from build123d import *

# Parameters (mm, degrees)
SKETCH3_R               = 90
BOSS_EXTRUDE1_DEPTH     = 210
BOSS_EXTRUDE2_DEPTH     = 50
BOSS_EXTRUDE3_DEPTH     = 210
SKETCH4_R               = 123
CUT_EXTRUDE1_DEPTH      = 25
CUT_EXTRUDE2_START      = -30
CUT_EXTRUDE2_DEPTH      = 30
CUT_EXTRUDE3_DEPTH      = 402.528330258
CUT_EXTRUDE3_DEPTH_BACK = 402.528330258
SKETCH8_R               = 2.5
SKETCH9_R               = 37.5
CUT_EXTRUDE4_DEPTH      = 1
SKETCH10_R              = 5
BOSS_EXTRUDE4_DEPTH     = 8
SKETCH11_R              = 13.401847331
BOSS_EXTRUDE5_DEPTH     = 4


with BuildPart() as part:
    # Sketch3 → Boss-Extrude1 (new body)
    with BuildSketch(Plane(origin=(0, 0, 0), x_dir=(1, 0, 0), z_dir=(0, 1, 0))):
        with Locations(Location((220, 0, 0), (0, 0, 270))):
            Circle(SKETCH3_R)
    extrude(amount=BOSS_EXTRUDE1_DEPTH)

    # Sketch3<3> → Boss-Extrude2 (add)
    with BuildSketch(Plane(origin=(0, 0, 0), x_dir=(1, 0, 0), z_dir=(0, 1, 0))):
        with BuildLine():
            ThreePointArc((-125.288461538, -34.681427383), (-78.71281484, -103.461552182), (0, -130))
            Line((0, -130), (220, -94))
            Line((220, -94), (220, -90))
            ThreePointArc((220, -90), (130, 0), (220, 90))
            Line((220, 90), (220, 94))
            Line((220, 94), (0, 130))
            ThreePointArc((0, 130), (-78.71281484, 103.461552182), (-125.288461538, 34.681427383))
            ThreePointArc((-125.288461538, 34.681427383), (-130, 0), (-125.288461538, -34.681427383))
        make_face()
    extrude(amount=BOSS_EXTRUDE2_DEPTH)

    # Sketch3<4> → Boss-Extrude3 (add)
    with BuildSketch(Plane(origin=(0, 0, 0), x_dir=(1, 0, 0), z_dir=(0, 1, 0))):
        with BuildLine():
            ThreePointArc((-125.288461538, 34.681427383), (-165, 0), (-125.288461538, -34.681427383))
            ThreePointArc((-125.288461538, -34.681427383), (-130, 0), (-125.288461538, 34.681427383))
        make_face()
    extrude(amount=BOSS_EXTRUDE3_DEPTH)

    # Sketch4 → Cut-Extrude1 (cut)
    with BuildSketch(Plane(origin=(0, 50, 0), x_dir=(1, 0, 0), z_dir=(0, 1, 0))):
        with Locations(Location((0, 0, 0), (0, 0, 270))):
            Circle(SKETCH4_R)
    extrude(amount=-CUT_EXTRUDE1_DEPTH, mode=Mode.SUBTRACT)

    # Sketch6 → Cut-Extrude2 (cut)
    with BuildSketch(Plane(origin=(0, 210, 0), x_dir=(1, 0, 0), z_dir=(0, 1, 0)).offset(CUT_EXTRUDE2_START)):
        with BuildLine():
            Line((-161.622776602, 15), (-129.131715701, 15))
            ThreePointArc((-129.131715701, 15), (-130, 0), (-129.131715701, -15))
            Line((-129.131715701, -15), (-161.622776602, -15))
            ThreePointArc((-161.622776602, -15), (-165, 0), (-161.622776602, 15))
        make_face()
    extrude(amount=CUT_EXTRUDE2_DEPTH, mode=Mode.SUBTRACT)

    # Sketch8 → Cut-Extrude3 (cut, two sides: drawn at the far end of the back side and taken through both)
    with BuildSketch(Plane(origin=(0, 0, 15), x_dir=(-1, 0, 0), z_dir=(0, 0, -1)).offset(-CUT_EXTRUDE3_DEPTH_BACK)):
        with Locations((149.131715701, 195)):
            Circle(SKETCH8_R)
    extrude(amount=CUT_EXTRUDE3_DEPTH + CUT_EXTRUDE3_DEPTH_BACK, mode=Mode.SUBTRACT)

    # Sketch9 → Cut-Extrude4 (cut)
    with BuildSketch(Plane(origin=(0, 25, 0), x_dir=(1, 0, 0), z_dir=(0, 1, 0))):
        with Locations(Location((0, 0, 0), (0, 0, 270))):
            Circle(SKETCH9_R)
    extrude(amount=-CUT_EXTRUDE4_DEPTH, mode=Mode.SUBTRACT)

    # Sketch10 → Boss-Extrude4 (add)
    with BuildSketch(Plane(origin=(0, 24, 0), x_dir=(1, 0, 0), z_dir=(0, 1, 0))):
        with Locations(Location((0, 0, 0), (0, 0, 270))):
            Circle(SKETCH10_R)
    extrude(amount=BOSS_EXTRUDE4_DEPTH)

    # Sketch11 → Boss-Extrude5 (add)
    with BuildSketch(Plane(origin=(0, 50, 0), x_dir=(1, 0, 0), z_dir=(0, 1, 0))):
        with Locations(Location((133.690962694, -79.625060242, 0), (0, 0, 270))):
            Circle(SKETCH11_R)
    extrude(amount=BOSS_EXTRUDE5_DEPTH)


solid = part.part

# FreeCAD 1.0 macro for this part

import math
import FreeCAD as App
import Part
import Sketcher

doc = App.newDocument("Part")
body = doc.addObject("PartDesign::Body", "Body")

sketch1 = body.newObject("Sketcher::SketchObject", "Sketch")
sketch1.AttachmentSupport = (doc.getObject("XZ_Plane"), [""])
sketch1.MapMode = "FlatFace"
sketch1.addGeometry(Part.Circle(App.Vector(220, 0, 0), App.Vector(0, 0, 1), 90), False)
sketch1.addConstraint(Sketcher.Constraint("PointOnObject", 0, 3, -1))
sketch1.addConstraint(Sketcher.Constraint("Diameter", 0, 180.0))
sketch1.addConstraint(Sketcher.Constraint("DistanceX", -1, 1, 0, 3, 220.0))
pad1 = body.newObject("PartDesign::Pad", "Pad")
pad1.Profile = sketch1
pad1.Length = 210
pad1.Reversed = True

sketch2 = body.newObject("Sketcher::SketchObject", "Sketch001")
sketch2.AttachmentSupport = (doc.getObject("XZ_Plane"), [""])
sketch2.MapMode = "FlatFace"
sketch2.addGeometry(Part.ArcOfCircle(Part.Circle(App.Vector(0, 0, 0), App.Vector(0, 0, 1), 130), math.radians(90), math.radians(165)), False)
sketch2.addGeometry(Part.LineSegment(App.Vector(0, 130, 0), App.Vector(220, 94, 0)), False)
sketch2.addGeometry(Part.LineSegment(App.Vector(220, 94, 0), App.Vector(220, 90, 0)), False)
sketch2.addGeometry(Part.ArcOfCircle(Part.Circle(App.Vector(220, 0, 0), App.Vector(0, 0, 1), 90), math.radians(90), math.radians(270)), False)
sketch2.addGeometry(Part.LineSegment(App.Vector(220, -90, 0), App.Vector(220, -94, 0)), False)
sketch2.addGeometry(Part.LineSegment(App.Vector(220, -94, 0), App.Vector(0, -130, 0)), False)
sketch2.addGeometry(Part.ArcOfCircle(Part.Circle(App.Vector(0, 0, 0), App.Vector(0, 0, 1), 130), math.radians(-165), math.radians(-90)), False)
sketch2.addGeometry(Part.ArcOfCircle(Part.Circle(App.Vector(0, 0, 0), App.Vector(0, 0, 1), 130), math.radians(165), math.radians(195)), False)
sketch2.addConstraint(Sketcher.Constraint("Coincident", 0, 1, 1, 1))
sketch2.addConstraint(Sketcher.Constraint("Coincident", 1, 2, 2, 1))
sketch2.addConstraint(Sketcher.Constraint("Coincident", 2, 2, 3, 1))
sketch2.addConstraint(Sketcher.Constraint("Coincident", 3, 2, 4, 1))
sketch2.addConstraint(Sketcher.Constraint("Coincident", 4, 2, 5, 1))
sketch2.addConstraint(Sketcher.Constraint("Coincident", 5, 2, 6, 2))
sketch2.addConstraint(Sketcher.Constraint("Tangent", 6, 1, 7, 2))
sketch2.addConstraint(Sketcher.Constraint("Tangent", 7, 1, 0, 2))
sketch2.addConstraint(Sketcher.Constraint("Vertical", 2))
sketch2.addConstraint(Sketcher.Constraint("Vertical", 4))
sketch2.addConstraint(Sketcher.Constraint("Coincident", 0, 3, -1, 1))
sketch2.addConstraint(Sketcher.Constraint("Coincident", 6, 3, -1, 1))
sketch2.addConstraint(Sketcher.Constraint("Symmetric", 2, 2, 3, 2, -1))
sketch2.addConstraint(Sketcher.Constraint("PointOnObject", 0, 1, -2))
sketch2.addConstraint(Sketcher.Constraint("PointOnObject", 5, 2, -2))
sketch2.addConstraint(Sketcher.Constraint("Vertical", 3, 3, 1, 2))
sketch2.addConstraint(Sketcher.Constraint("Vertical", 6, 1, 7, 1))
sketch2.addConstraint(Sketcher.Constraint("Equal", 2, 4))
sketch2.addConstraint(Sketcher.Constraint("Radius", 0, 130.0))
sketch2.addConstraint(Sketcher.Constraint("Radius", 3, 90.0))
sketch2.addConstraint(Sketcher.Constraint("DistanceY", 2, 2, 2, 1, 4.0))
sketch2.addConstraint(Sketcher.Constraint("DistanceX", -1, 1, 3, 3, 220.0))
sketch2.addConstraint(Sketcher.Constraint("DistanceX", 6, 1, -1, 1, 125.288462))
pad2 = body.newObject("PartDesign::Pad", "Pad001")
pad2.Profile = sketch2
pad2.Length = 50
pad2.Reversed = True

sketch3 = body.newObject("Sketcher::SketchObject", "Sketch002")
sketch3.AttachmentSupport = (doc.getObject("XZ_Plane"), [""])
sketch3.MapMode = "FlatFace"
sketch3.addGeometry(Part.ArcOfCircle(Part.Circle(App.Vector(-130, 0, 0), App.Vector(0, 0, 1), 35), math.radians(82), math.radians(278)), False)
sketch3.addGeometry(Part.ArcOfCircle(Part.Circle(App.Vector(0, 0, 0), App.Vector(0, 0, 1), 130), math.radians(165), math.radians(195)), False)
sketch3.addConstraint(Sketcher.Constraint("Coincident", 0, 1, 1, 1))
sketch3.addConstraint(Sketcher.Constraint("Coincident", 1, 2, 0, 2))
sketch3.addConstraint(Sketcher.Constraint("Coincident", 1, 3, -1, 1))
sketch3.addConstraint(Sketcher.Constraint("PointOnObject", 0, 3, -1))
sketch3.addConstraint(Sketcher.Constraint("Radius", 0, 35.0))
sketch3.addConstraint(Sketcher.Constraint("Radius", 1, 130.0))
sketch3.addConstraint(Sketcher.Constraint("DistanceX", 0, 3, -1, 1, 130.0))
pad3 = body.newObject("PartDesign::Pad", "Pad002")
pad3.Profile = sketch3
pad3.Length = 210
pad3.Reversed = True

sketch4 = body.newObject("Sketcher::SketchObject", "Sketch003")
sketch4.AttachmentSupport = (doc.getObject("XZ_Plane"), [""])
sketch4.MapMode = "FlatFace"
sketch4.AttachmentOffset = App.Placement(App.Vector(0, 0, -50), App.Rotation())
sketch4.addGeometry(Part.Circle(App.Vector(0, 0, 0), App.Vector(0, 0, 1), 123), False)
sketch4.addConstraint(Sketcher.Constraint("Coincident", 0, 3, -1, 1))
sketch4.addConstraint(Sketcher.Constraint("Diameter", 0, 246.0))
pocket1 = body.newObject("PartDesign::Pocket", "Pocket")
pocket1.Profile = sketch4
pocket1.Length = 25
pocket1.Reversed = True

sketch5 = body.newObject("Sketcher::SketchObject", "Sketch004")
sketch5.AttachmentSupport = (doc.getObject("XZ_Plane"), [""])
sketch5.MapMode = "FlatFace"
sketch5.AttachmentOffset = App.Placement(App.Vector(0, 0, -180), App.Rotation())
sketch5.addGeometry(Part.LineSegment(App.Vector(-129, -15, 0), App.Vector(-162, -15, 0)), False)
sketch5.addGeometry(Part.ArcOfCircle(Part.Circle(App.Vector(-130, 0, 0), App.Vector(0, 0, 1), 35), math.radians(155), math.radians(205)), False)
sketch5.addGeometry(Part.LineSegment(App.Vector(-162, 15, 0), App.Vector(-129, 15, 0)), False)
sketch5.addGeometry(Part.ArcOfCircle(Part.Circle(App.Vector(0, 0, 0), App.Vector(0, 0, 1), 130), math.radians(173.37), math.radians(186.63)), False)
sketch5.addConstraint(Sketcher.Constraint("Coincident", 0, 2, 1, 2))
sketch5.addConstraint(Sketcher.Constraint("Coincident", 1, 1, 2, 1))
sketch5.addConstraint(Sketcher.Constraint("Coincident", 2, 2, 3, 1))
sketch5.addConstraint(Sketcher.Constraint("Coincident", 3, 2, 0, 1))
sketch5.addConstraint(Sketcher.Constraint("Horizontal", 0))
sketch5.addConstraint(Sketcher.Constraint("Horizontal", 2))
sketch5.addConstraint(Sketcher.Constraint("Coincident", 3, 3, -1, 1))
sketch5.addConstraint(Sketcher.Constraint("Symmetric", 0, 2, 1, 1, -1))
sketch5.addConstraint(Sketcher.Constraint("Radius", 1, 35.0))
sketch5.addConstraint(Sketcher.Constraint("Radius", 3, 130.0))
sketch5.addConstraint(Sketcher.Constraint("DistanceX", 1, 3, -1, 1, 130.0))
sketch5.addConstraint(Sketcher.Constraint("DistanceY", 0, 2, -1, 1, 15.0))
pocket2 = body.newObject("PartDesign::Pocket", "Pocket001")
pocket2.Profile = sketch5
pocket2.Length = 30

sketch6 = body.newObject("Sketcher::SketchObject", "Sketch005")
sketch6.AttachmentSupport = (doc.getObject("XY_Plane"), [""])
sketch6.MapMode = "FlatFace"
sketch6.AttachmentOffset = App.Placement(App.Vector(0, 0, 15), App.Rotation())
sketch6.addGeometry(Part.Circle(App.Vector(-149.1, 195, 0), App.Vector(0, 0, 1), 2.5), False)
sketch6.addConstraint(Sketcher.Constraint("Diameter", 0, 5.0))
sketch6.addConstraint(Sketcher.Constraint("DistanceY", -1, 1, 0, 3, 195.0))
sketch6.addConstraint(Sketcher.Constraint("DistanceX", 0, 3, -1, 1, 149.131716))
pocket3 = body.newObject("PartDesign::Pocket", "Pocket002")
pocket3.Profile = sketch6
pocket3.Type = "ThroughAll"
pocket3.Midplane = True

sketch7 = body.newObject("Sketcher::SketchObject", "Sketch006")
sketch7.AttachmentSupport = (doc.getObject("XZ_Plane"), [""])
sketch7.MapMode = "FlatFace"
sketch7.AttachmentOffset = App.Placement(App.Vector(0, 0, -25), App.Rotation())
sketch7.addGeometry(Part.Circle(App.Vector(0, 0, 0), App.Vector(0, 0, 1), 38), False)
sketch7.addConstraint(Sketcher.Constraint("Coincident", 0, 3, -1, 1))
sketch7.addConstraint(Sketcher.Constraint("Diameter", 0, 75.0))
pocket4 = body.newObject("PartDesign::Pocket", "Pocket003")
pocket4.Profile = sketch7
pocket4.Length = 1
pocket4.Reversed = True

sketch8 = body.newObject("Sketcher::SketchObject", "Sketch007")
sketch8.AttachmentSupport = (doc.getObject("XZ_Plane"), [""])
sketch8.MapMode = "FlatFace"
sketch8.AttachmentOffset = App.Placement(App.Vector(0, 0, -24), App.Rotation())
sketch8.addGeometry(Part.Circle(App.Vector(0, 0, 0), App.Vector(0, 0, 1), 5), False)
sketch8.addConstraint(Sketcher.Constraint("Coincident", 0, 3, -1, 1))
sketch8.addConstraint(Sketcher.Constraint("Diameter", 0, 10.0))
pad4 = body.newObject("PartDesign::Pad", "Pad003")
pad4.Profile = sketch8
pad4.Length = 8
pad4.Reversed = True

sketch9 = body.newObject("Sketcher::SketchObject", "Sketch008")
sketch9.AttachmentSupport = (doc.getObject("XZ_Plane"), [""])
sketch9.MapMode = "FlatFace"
sketch9.AttachmentOffset = App.Placement(App.Vector(0, 0, -50), App.Rotation())
sketch9.addGeometry(Part.Circle(App.Vector(134, 80, 0), App.Vector(0, 0, 1), 13), False)
sketch9.addConstraint(Sketcher.Constraint("Diameter", 0, 26.803695))
sketch9.addConstraint(Sketcher.Constraint("DistanceY", -1, 1, 0, 3, 79.62506))
sketch9.addConstraint(Sketcher.Constraint("DistanceX", -1, 1, 0, 3, 133.690963))
pad5 = body.newObject("PartDesign::Pad", "Pad004")
pad5.Profile = sketch9
pad5.Length = 4
pad5.Reversed = True

doc.recompute()
